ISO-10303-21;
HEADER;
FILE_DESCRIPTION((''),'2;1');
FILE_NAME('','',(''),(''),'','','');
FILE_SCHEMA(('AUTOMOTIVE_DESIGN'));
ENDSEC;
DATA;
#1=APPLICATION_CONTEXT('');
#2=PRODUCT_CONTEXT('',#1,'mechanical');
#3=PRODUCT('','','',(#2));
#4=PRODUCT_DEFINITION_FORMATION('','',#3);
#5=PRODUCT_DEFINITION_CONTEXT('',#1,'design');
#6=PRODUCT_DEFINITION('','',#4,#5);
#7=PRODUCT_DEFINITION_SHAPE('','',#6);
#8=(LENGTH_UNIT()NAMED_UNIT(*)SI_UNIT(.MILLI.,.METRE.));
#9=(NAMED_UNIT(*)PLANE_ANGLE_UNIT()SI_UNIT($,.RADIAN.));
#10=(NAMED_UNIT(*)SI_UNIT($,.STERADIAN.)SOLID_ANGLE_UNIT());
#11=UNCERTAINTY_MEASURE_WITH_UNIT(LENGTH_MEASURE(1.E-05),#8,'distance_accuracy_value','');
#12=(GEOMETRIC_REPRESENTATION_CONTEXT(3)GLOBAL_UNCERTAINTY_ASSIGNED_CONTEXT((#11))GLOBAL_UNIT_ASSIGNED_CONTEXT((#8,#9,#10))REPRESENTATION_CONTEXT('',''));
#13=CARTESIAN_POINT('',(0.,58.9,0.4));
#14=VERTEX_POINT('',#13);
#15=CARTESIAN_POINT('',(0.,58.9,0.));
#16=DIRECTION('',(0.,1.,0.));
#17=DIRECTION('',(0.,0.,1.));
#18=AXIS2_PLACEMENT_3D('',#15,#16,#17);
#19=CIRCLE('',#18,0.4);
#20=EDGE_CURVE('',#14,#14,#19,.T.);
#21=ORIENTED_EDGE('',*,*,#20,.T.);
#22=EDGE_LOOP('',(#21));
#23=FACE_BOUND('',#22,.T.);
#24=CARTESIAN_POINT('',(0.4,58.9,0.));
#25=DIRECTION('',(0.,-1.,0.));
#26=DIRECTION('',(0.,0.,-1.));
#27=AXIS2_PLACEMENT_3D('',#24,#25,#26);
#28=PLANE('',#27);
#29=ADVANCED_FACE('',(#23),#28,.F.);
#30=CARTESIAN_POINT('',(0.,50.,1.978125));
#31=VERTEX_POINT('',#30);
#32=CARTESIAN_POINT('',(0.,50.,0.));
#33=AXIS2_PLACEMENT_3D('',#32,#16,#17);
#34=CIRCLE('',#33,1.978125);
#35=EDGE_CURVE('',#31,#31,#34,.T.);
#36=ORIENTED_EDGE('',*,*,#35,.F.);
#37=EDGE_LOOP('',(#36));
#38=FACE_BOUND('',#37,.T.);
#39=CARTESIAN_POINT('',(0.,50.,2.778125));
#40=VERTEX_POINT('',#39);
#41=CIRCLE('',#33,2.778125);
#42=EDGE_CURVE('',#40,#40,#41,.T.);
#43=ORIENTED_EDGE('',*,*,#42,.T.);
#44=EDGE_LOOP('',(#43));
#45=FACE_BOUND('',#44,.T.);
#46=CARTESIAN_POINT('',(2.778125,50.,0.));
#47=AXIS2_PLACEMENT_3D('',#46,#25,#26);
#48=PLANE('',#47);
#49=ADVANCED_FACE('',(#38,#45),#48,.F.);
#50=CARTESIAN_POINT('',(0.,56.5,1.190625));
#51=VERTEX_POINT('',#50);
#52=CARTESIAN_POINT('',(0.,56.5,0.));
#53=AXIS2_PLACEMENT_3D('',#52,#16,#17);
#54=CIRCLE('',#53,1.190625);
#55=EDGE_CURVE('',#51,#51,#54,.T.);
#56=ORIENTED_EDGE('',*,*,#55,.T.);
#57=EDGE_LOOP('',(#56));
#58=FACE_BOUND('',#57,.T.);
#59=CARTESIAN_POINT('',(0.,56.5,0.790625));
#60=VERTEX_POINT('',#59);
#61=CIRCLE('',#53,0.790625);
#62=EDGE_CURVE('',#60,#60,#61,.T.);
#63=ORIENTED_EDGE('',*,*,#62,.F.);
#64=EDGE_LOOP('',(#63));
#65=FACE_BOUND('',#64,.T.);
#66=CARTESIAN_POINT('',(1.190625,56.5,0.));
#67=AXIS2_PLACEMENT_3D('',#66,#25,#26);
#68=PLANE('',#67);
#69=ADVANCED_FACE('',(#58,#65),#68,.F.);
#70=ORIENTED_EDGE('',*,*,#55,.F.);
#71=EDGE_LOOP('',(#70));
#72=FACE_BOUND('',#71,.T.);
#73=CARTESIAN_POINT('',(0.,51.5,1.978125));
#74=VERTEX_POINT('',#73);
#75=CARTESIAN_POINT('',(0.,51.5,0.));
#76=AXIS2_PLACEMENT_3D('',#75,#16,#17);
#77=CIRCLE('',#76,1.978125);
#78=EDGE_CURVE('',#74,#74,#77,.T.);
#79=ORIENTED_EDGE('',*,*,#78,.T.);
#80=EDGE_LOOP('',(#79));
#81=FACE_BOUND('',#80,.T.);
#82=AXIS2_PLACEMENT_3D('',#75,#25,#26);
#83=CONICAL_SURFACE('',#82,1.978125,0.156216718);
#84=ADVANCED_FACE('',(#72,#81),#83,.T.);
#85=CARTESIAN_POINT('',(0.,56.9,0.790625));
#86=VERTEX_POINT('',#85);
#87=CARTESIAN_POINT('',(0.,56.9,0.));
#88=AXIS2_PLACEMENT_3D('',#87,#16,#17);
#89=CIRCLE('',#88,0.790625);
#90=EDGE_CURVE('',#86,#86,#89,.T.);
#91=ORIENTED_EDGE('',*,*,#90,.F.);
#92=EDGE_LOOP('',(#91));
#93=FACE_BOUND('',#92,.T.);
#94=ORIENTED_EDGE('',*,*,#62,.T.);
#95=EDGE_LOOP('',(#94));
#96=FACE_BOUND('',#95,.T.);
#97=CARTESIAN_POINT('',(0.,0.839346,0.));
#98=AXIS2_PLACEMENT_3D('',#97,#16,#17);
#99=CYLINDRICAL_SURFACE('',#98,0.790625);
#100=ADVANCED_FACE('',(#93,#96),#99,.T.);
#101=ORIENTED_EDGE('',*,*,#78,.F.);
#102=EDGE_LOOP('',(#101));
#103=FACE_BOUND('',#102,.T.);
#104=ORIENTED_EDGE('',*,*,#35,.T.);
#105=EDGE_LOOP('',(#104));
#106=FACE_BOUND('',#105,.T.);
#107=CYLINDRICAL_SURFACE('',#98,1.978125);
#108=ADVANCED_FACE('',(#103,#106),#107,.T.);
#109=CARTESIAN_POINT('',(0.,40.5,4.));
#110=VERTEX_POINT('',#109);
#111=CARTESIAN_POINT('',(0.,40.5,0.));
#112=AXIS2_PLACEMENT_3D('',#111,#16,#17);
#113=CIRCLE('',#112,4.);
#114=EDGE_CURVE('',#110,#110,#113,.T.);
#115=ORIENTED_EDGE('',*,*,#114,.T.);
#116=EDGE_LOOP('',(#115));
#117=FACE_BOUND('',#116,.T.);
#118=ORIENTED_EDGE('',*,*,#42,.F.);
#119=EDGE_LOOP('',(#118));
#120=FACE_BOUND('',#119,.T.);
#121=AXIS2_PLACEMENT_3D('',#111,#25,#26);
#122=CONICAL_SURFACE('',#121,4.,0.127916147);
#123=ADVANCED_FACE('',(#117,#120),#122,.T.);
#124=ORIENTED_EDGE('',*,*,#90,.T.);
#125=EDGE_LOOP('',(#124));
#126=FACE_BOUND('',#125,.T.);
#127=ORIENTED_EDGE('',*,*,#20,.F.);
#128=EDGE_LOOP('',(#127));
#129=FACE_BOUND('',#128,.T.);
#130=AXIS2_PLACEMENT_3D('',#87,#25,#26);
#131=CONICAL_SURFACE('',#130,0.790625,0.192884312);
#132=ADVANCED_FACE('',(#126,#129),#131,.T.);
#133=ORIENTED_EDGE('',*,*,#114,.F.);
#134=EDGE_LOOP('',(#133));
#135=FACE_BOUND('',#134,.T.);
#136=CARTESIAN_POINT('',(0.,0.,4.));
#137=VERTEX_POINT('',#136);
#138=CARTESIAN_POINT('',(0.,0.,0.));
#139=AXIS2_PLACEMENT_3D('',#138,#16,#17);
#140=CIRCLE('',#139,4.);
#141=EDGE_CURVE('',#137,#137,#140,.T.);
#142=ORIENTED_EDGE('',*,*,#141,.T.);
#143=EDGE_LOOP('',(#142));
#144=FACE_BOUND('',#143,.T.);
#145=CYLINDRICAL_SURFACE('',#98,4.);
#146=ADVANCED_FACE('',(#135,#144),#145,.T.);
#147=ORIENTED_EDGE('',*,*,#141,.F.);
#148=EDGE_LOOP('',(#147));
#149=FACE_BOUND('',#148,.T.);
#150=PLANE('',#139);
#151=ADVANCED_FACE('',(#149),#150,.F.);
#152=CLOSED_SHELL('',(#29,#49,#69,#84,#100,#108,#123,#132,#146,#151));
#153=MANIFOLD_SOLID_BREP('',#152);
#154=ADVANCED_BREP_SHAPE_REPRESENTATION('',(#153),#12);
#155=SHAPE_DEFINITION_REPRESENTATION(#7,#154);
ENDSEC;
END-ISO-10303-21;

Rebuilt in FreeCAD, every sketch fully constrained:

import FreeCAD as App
import Part
import Sketcher
Q = App.Units.Quantity


def add_polygon(sketch, points):
    """Adds a closed chain of lines whose ends are joined by coincident constraints."""
    first, n = sketch.GeometryCount, len(points)
    for a, b in zip(points, points[1:] + points[:1]):
        sketch.addGeometry(Part.LineSegment(App.Vector(*a, 0), App.Vector(*b, 0)), False)
    for i in range(n):
        sketch.addConstraint(Sketcher.Constraint("Coincident", first + i, 2, first + (i + 1) % n, 1))

doc = App.newDocument("Part")
body = doc.addObject("PartDesign::Body", "Body")

# Sketch on XY plane
sketch1 = body.newObject("Sketcher::SketchObject", "Sketch")
sketch1.AttachmentSupport = (doc.getObject("XY_Plane"), [""])
sketch1.MapMode = "FlatFace"
add_polygon(sketch1, [(0, 0), (4, 0), (4, 40.5), (2.78, 50), (1.98, 50), (1.98, 51.5), (1.19, 56.5), (0.79, 56.5), (0.79, 56.9), (0.4, 58.9), (0, 58.9)])  # lines 0-10
sketch1.addConstraint([
    Sketcher.Constraint("Horizontal", 0),
    Sketcher.Constraint("Vertical", 1),
    Sketcher.Constraint("Horizontal", 3),
    Sketcher.Constraint("Vertical", 4),
    Sketcher.Constraint("Horizontal", 6),
    Sketcher.Constraint("Vertical", 7),
    Sketcher.Constraint("Horizontal", 9),
    Sketcher.Constraint("Vertical", 10),
    Sketcher.Constraint("Coincident", 10, 2, -1, 1),
    Sketcher.Constraint("Equal", 6, 9),
    Sketcher.Constraint("Equal", 9, 7),
    Sketcher.Constraint("DistanceX", 0, 1, 0, 2, Q("4 mm")),
    Sketcher.Constraint("DistanceX", 3, 2, 3, 1, Q("0.8 mm")),
    Sketcher.Constraint("DistanceX", 6, 2, 6, 1, Q("0.4 mm")),
    Sketcher.Constraint("DistanceY", 1, 1, 1, 2, Q("40.5 mm")),
    Sketcher.Constraint("DistanceY", 4, 1, 4, 2, Q("1.5 mm")),
    Sketcher.Constraint("DistanceY", 10, 2, 10, 1, Q("58.9 mm")),
    Sketcher.Constraint("DistanceY", -1, 1, 2, 2, Q("50 mm")),
    Sketcher.Constraint("DistanceY", 4, 2, 5, 2, Q("5 mm")),
    Sketcher.Constraint("DistanceX", 5, 2, 4, 2, Q("0.7875 mm")),
    Sketcher.Constraint("Distance", 8, Q("2.03779 mm")),
])
revolution = body.newObject("PartDesign::Revolution", "Revolution")
revolution.Profile = sketch1
revolution.ReferenceAxis = (sketch1, ["V_Axis"])
revolution.Angle = 360

doc.recompute()
